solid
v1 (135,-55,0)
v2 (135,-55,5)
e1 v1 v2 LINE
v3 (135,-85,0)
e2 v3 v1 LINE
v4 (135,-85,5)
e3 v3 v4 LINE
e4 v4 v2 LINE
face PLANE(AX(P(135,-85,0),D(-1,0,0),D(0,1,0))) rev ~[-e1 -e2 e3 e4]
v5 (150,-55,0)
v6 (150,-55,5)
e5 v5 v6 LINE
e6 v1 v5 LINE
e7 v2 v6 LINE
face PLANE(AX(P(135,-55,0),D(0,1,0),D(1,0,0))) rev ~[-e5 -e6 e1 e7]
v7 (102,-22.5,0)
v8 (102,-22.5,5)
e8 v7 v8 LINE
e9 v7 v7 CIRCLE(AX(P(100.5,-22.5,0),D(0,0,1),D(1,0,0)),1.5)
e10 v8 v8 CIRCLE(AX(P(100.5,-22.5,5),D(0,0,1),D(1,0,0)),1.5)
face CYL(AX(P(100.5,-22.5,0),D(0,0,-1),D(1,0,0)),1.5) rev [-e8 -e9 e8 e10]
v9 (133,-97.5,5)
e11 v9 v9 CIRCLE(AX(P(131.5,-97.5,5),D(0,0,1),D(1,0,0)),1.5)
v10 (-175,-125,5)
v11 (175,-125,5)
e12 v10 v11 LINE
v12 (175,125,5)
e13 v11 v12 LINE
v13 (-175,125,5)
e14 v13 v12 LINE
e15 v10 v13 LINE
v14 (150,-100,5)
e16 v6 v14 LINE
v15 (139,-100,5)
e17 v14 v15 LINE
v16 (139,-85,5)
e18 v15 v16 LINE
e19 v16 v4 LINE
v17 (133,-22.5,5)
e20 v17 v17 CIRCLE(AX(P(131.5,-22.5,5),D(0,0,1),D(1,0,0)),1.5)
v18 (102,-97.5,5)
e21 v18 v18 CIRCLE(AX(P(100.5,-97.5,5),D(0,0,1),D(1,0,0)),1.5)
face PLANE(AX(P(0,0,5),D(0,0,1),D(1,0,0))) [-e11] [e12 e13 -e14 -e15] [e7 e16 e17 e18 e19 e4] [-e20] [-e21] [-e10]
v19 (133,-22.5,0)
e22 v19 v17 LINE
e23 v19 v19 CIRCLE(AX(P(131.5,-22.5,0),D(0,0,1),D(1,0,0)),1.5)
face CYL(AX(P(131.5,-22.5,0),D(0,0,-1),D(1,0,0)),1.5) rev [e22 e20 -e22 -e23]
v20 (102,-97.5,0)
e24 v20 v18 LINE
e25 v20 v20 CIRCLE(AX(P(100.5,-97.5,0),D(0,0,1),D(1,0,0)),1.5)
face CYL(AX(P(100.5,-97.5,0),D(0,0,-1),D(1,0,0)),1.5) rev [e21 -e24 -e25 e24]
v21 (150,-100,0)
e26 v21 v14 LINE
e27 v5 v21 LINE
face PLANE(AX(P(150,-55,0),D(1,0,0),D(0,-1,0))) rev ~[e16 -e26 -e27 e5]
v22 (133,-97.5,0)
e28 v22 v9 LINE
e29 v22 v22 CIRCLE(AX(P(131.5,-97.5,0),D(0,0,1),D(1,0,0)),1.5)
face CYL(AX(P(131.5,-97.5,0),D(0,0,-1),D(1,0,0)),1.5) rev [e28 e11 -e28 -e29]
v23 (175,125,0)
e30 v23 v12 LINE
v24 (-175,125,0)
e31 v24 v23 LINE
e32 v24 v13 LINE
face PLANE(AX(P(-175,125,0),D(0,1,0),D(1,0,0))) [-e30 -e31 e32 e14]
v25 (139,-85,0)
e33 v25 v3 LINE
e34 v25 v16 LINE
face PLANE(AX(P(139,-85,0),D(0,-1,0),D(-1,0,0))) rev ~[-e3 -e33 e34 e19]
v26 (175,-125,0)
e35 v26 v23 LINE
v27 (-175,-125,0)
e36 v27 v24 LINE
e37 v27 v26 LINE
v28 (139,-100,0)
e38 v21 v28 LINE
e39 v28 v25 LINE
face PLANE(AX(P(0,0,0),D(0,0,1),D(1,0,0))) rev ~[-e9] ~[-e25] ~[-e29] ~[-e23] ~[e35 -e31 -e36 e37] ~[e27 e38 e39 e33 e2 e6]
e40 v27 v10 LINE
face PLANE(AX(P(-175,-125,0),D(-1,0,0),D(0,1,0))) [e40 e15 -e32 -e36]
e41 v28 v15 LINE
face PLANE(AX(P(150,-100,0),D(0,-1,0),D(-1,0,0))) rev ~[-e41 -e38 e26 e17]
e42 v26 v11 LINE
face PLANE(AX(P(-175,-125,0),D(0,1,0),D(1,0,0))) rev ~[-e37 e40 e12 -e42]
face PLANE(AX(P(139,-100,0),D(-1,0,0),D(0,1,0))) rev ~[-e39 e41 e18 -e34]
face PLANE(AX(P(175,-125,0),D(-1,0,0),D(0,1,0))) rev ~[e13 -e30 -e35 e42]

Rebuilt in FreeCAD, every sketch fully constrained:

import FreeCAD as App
import Part
import Sketcher
from FreeCAD import Vector
Q = App.Units.Quantity

doc = App.newDocument("Part")
body = doc.addObject("PartDesign::Body", "Body")

# Sketch on XY plane
sketch1 = doc.addObject("Sketcher::SketchObject", "Sketch")
body.addObject(sketch1)
sketch1.AttachmentSupport = (doc.XY_Plane, [""])
sketch1.MapMode = "FlatFace"
sketch1.addGeometry([
    Part.LineSegment(Vector(-175, 125, 0), Vector(-175, -125, 0)),  # 0
    Part.LineSegment(Vector(-175, -125, 0), Vector(175, -125, 0)),  # 1
    Part.LineSegment(Vector(175, -125, 0), Vector(175, 125, 0)),  # 2
    Part.LineSegment(Vector(175, 125, 0), Vector(-175, 125, 0)),  # 3
    Part.Circle(Vector(100.5, -97.5, 0), Vector(0, 0, 1), 1.5),  # 4
    Part.Circle(Vector(131.5, -97.5, 0), Vector(0, 0, 1), 1.5),  # 5
    Part.LineSegment(Vector(139, -85, 0), Vector(135, -85, 0)),  # 6
    Part.LineSegment(Vector(135, -85, 0), Vector(135, -55, 0)),  # 7
    Part.LineSegment(Vector(135, -55, 0), Vector(150, -55, 0)),  # 8
    Part.LineSegment(Vector(150, -55, 0), Vector(150, -100, 0)),  # 9
    Part.LineSegment(Vector(150, -100, 0), Vector(139, -100, 0)),  # 10
    Part.LineSegment(Vector(139, -100, 0), Vector(139, -85, 0)),  # 11
    Part.Circle(Vector(100.5, -22.5, 0), Vector(0, 0, 1), 1.5),  # 12
    Part.Circle(Vector(131.5, -22.5, 0), Vector(0, 0, 1), 1.5),  # 13
], False)
sketch1.addConstraint([
    Sketcher.Constraint("Coincident", 0, 2, 1, 1),
    Sketcher.Constraint("Coincident", 1, 2, 2, 1),
    Sketcher.Constraint("Coincident", 2, 2, 3, 1),
    Sketcher.Constraint("Coincident", 3, 2, 0, 1),
    Sketcher.Constraint("Coincident", 6, 2, 7, 1),
    Sketcher.Constraint("Coincident", 7, 2, 8, 1),
    Sketcher.Constraint("Coincident", 8, 2, 9, 1),
    Sketcher.Constraint("Coincident", 9, 2, 10, 1),
    Sketcher.Constraint("Coincident", 10, 2, 11, 1),
    Sketcher.Constraint("Coincident", 11, 2, 6, 1),
    Sketcher.Constraint("Vertical", 0),
    Sketcher.Constraint("Horizontal", 1),
    Sketcher.Constraint("Vertical", 2),
    Sketcher.Constraint("Horizontal", 3),
    Sketcher.Constraint("Horizontal", 6),
    Sketcher.Constraint("Vertical", 7),
    Sketcher.Constraint("Horizontal", 8),
    Sketcher.Constraint("Vertical", 9),
    Sketcher.Constraint("Horizontal", 10),
    Sketcher.Constraint("Vertical", 11),
    Sketcher.Constraint("Equal", 4, 5),
    Sketcher.Constraint("Equal", 5, 12),
    Sketcher.Constraint("Equal", 12, 13),
    Sketcher.Constraint("Symmetric", 0, 2, 2, 2, -1, 1),
    Sketcher.Constraint("Horizontal", 4, 3, 5, 3),
    Sketcher.Constraint("Horizontal", 12, 3, 13, 3),
    Sketcher.Constraint("Vertical", 4, 3, 12, 3),
    Sketcher.Constraint("Vertical", 5, 3, 13, 3),
    Sketcher.Constraint("Equal", 8, 11),
    Sketcher.Constraint("Diameter", 4, Q("3 mm")),
    Sketcher.Constraint("DistanceX", 1, 1, 1, 2, Q("350 mm")),
    Sketcher.Constraint("DistanceX", 6, 2, 6, 1, Q("4 mm")),
    Sketcher.Constraint("DistanceX", 8, 1, 8, 2, Q("15 mm")),
    Sketcher.Constraint("DistanceY", 0, 2, 0, 1, Q("250 mm")),
    Sketcher.Constraint("DistanceY", 7, 1, 7, 2, Q("30 mm")),
    Sketcher.Constraint("DistanceX", -1, 1, 6, 2, Q("135 mm")),
    Sketcher.Constraint("DistanceY", 6, 2, -1, 1, Q("85 mm")),
    Sketcher.Constraint("DistanceX", 4, 3, 5, 3, Q("31 mm")),
    Sketcher.Constraint("DistanceY", 4, 3, 12, 3, Q("75 mm")),
    Sketcher.Constraint("DistanceX", -1, 1, 4, 3, Q("100.5 mm")),
    Sketcher.Constraint("DistanceY", 4, 3, -1, 1, Q("97.5 mm")),
])
pad1 = doc.addObject("PartDesign::Pad", "Pad")
body.addObject(pad1)
pad1.Profile = sketch1
pad1.Length = 5

doc.recompute()
